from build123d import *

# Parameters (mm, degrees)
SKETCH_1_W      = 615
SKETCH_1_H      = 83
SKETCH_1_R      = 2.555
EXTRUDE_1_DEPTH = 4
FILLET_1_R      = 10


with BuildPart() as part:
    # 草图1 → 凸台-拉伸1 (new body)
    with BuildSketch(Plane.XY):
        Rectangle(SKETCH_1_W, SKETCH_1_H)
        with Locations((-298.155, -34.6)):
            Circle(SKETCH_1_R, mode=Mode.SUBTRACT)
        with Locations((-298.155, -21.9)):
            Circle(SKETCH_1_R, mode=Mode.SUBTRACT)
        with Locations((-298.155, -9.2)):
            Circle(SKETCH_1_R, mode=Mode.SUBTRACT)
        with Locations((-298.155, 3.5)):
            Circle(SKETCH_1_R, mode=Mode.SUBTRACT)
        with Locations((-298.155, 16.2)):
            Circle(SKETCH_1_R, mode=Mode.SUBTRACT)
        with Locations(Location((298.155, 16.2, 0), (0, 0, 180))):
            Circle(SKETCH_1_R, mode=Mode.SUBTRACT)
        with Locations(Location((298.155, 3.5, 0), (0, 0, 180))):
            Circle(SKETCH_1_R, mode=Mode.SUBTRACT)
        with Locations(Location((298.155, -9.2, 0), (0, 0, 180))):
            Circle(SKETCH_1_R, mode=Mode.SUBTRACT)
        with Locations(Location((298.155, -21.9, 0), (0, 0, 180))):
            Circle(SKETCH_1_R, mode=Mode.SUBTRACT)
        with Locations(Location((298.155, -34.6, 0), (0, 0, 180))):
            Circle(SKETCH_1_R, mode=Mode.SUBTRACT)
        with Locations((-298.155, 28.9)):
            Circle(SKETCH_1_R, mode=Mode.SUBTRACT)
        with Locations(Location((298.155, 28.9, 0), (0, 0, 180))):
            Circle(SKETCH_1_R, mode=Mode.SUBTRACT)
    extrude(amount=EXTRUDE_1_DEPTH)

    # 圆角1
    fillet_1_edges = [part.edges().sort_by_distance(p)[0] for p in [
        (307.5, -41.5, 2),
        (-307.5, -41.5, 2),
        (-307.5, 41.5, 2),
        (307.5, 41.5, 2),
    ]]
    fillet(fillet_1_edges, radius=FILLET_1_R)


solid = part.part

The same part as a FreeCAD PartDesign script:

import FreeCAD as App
import Part
import Sketcher

V = App.Vector


def edges_at(feature, points):
    """Names of the edges that pass closest to the given points."""
    edges = feature.Shape.Edges
    near = lambda p: min(range(len(edges)), key=lambda i: edges[i].distToShape(Part.Vertex(*p))[0])
    return sorted({f"Edge{near(p) + 1}" for p in points})


def add_polygon(sketch, points):
    """Adds a closed chain of lines whose ends are joined by coincident constraints."""
    first, n = sketch.GeometryCount, len(points)
    for a, b in zip(points, points[1:] + points[:1]):
        sketch.addGeometry(Part.LineSegment(App.Vector(*a, 0), App.Vector(*b, 0)), False)
    for i in range(n):
        sketch.addConstraint(Sketcher.Constraint("Coincident", first + i, 2, first + (i + 1) % n, 1))

doc = App.newDocument("Part")
params = doc.addObject("Spreadsheet::Sheet", "Params")
for row, (alias, value) in enumerate([
    ("sketch1_diameter", "5.11 mm"),
    ("sketch1_width", "615 mm"),
    ("sketch1_height", "83 mm"),
    ("pad1_length", "4 mm"),
    ("fillet_radius", "10 mm"),
], start=1):
    params.set(f"A{row}", alias)
    params.set(f"B{row}", "=" + value)
    params.setAlias(f"B{row}", alias)

body = doc.addObject("PartDesign::Body", "Body")

# Sketch on XY plane
sketch1 = body.newObject("Sketcher::SketchObject", "Sketch")
sketch1.AttachmentSupport = (doc.getObject("XY_Plane"), [""])
sketch1.MapMode = "FlatFace"
add_polygon(sketch1, [(-307.5, 41.5), (-307.5, -41.5), (307.5, -41.5), (307.5, 41.5)])  # lines 0-3
sketch1.addGeometry(Part.Circle(V(-298.2, -34.6, 0), V(0, 0, 1), 2.6), False)  # 4
sketch1.addGeometry(Part.Circle(V(-298.2, -21.9, 0), V(0, 0, 1), 2.6), False)  # 5
sketch1.addGeometry(Part.Circle(V(-298.2, -9.2, 0), V(0, 0, 1), 2.6), False)  # 6
sketch1.addGeometry(Part.Circle(V(298.2, -34.6, 0), V(0, 0, 1), 2.6), False)  # 7
sketch1.addGeometry(Part.Circle(V(298.2, -21.9, 0), V(0, 0, 1), 2.6), False)  # 8
sketch1.addGeometry(Part.Circle(V(298.2, -9.2, 0), V(0, 0, 1), 2.6), False)  # 9
sketch1.addGeometry(Part.Circle(V(-298.2, 3.5, 0), V(0, 0, 1), 2.6), False)  # 10
sketch1.addGeometry(Part.Circle(V(-298.2, 16.2, 0), V(0, 0, 1), 2.6), False)  # 11
sketch1.addGeometry(Part.Circle(V(-298.2, 28.9, 0), V(0, 0, 1), 2.6), False)  # 12
sketch1.addGeometry(Part.Circle(V(298.2, 3.5, 0), V(0, 0, 1), 2.6), False)  # 13
sketch1.addGeometry(Part.Circle(V(298.2, 16.2, 0), V(0, 0, 1), 2.6), False)  # 14
sketch1.addGeometry(Part.Circle(V(298.2, 28.9, 0), V(0, 0, 1), 2.6), False)  # 15
sketch1.addConstraint([
    Sketcher.Constraint("Vertical", 0),
    Sketcher.Constraint("Horizontal", 1),
    Sketcher.Constraint("Vertical", 2),
    Sketcher.Constraint("Horizontal", 3),
    Sketcher.Constraint("Equal", 4, 5),
    Sketcher.Constraint("Equal", 5, 6),
    Sketcher.Constraint("Equal", 6, 7),
    Sketcher.Constraint("Equal", 7, 8),
    Sketcher.Constraint("Equal", 8, 9),
    Sketcher.Constraint("Equal", 9, 10),
    Sketcher.Constraint("Equal", 10, 11),
    Sketcher.Constraint("Equal", 11, 12),
    Sketcher.Constraint("Equal", 12, 13),
    Sketcher.Constraint("Equal", 13, 14),
    Sketcher.Constraint("Equal", 14, 15),
    Sketcher.Constraint("Symmetric", 0, 2, 2, 2, -1, 1),
    Sketcher.Constraint("Symmetric", 4, 3, 7, 3, -2),
    Sketcher.Constraint("Symmetric", 5, 3, 8, 3, -2),
    Sketcher.Constraint("Symmetric", 6, 3, 9, 3, -2),
    Sketcher.Constraint("Symmetric", 10, 3, 13, 3, -2),
    Sketcher.Constraint("Symmetric", 11, 3, 14, 3, -2),
    Sketcher.Constraint("Symmetric", 12, 3, 15, 3, -2),
    Sketcher.Constraint("Vertical", 4, 3, 5, 3),
    Sketcher.Constraint("Vertical", 5, 3, 6, 3),
    Sketcher.Constraint("Vertical", 6, 3, 10, 3),
    Sketcher.Constraint("Vertical", 10, 3, 11, 3),
    Sketcher.Constraint("Vertical", 11, 3, 12, 3),
    Sketcher.Constraint("Diameter", 4, 5.11),
    Sketcher.Constraint("DistanceX", 1, 1, 1, 2, 615.0),
    Sketcher.Constraint("DistanceY", 0, 2, 0, 1, 83.0),
    Sketcher.Constraint("DistanceY", 0, 2, 10, 3, 45.0),
    Sketcher.Constraint("DistanceY", 4, 3, -1, 1, 34.6),
    Sketcher.Constraint("DistanceY", 5, 3, -1, 1, 21.9),
    Sketcher.Constraint("DistanceY", 6, 3, -1, 1, 9.2),
    Sketcher.Constraint("DistanceY", -1, 1, 11, 3, 16.2),
    Sketcher.Constraint("DistanceY", -1, 1, 12, 3, 28.9),
    Sketcher.Constraint("DistanceX", 4, 3, 7, 3, 596.31),
])
sketch1.setExpression("Constraints[31]", "Params.sketch1_diameter")
sketch1.setExpression("Constraints[32]", "Params.sketch1_width")
sketch1.setExpression("Constraints[33]", "Params.sketch1_height")
pad1 = body.newObject("PartDesign::Pad", "Pad")
pad1.Profile = sketch1
pad1.setExpression("Length", "Params.pad1_length")
doc.recompute()

fillet = body.newObject("PartDesign::Fillet", "Fillet")
fillet.Base = (pad1, edges_at(pad1, [
    (307.5, -41.5, 2),
    (-307.5, -41.5, 2),
    (-307.5, 41.5, 2),
    (307.5, 41.5, 2),
]))
fillet.setExpression("Radius", "Params.fillet_radius")

doc.recompute()
